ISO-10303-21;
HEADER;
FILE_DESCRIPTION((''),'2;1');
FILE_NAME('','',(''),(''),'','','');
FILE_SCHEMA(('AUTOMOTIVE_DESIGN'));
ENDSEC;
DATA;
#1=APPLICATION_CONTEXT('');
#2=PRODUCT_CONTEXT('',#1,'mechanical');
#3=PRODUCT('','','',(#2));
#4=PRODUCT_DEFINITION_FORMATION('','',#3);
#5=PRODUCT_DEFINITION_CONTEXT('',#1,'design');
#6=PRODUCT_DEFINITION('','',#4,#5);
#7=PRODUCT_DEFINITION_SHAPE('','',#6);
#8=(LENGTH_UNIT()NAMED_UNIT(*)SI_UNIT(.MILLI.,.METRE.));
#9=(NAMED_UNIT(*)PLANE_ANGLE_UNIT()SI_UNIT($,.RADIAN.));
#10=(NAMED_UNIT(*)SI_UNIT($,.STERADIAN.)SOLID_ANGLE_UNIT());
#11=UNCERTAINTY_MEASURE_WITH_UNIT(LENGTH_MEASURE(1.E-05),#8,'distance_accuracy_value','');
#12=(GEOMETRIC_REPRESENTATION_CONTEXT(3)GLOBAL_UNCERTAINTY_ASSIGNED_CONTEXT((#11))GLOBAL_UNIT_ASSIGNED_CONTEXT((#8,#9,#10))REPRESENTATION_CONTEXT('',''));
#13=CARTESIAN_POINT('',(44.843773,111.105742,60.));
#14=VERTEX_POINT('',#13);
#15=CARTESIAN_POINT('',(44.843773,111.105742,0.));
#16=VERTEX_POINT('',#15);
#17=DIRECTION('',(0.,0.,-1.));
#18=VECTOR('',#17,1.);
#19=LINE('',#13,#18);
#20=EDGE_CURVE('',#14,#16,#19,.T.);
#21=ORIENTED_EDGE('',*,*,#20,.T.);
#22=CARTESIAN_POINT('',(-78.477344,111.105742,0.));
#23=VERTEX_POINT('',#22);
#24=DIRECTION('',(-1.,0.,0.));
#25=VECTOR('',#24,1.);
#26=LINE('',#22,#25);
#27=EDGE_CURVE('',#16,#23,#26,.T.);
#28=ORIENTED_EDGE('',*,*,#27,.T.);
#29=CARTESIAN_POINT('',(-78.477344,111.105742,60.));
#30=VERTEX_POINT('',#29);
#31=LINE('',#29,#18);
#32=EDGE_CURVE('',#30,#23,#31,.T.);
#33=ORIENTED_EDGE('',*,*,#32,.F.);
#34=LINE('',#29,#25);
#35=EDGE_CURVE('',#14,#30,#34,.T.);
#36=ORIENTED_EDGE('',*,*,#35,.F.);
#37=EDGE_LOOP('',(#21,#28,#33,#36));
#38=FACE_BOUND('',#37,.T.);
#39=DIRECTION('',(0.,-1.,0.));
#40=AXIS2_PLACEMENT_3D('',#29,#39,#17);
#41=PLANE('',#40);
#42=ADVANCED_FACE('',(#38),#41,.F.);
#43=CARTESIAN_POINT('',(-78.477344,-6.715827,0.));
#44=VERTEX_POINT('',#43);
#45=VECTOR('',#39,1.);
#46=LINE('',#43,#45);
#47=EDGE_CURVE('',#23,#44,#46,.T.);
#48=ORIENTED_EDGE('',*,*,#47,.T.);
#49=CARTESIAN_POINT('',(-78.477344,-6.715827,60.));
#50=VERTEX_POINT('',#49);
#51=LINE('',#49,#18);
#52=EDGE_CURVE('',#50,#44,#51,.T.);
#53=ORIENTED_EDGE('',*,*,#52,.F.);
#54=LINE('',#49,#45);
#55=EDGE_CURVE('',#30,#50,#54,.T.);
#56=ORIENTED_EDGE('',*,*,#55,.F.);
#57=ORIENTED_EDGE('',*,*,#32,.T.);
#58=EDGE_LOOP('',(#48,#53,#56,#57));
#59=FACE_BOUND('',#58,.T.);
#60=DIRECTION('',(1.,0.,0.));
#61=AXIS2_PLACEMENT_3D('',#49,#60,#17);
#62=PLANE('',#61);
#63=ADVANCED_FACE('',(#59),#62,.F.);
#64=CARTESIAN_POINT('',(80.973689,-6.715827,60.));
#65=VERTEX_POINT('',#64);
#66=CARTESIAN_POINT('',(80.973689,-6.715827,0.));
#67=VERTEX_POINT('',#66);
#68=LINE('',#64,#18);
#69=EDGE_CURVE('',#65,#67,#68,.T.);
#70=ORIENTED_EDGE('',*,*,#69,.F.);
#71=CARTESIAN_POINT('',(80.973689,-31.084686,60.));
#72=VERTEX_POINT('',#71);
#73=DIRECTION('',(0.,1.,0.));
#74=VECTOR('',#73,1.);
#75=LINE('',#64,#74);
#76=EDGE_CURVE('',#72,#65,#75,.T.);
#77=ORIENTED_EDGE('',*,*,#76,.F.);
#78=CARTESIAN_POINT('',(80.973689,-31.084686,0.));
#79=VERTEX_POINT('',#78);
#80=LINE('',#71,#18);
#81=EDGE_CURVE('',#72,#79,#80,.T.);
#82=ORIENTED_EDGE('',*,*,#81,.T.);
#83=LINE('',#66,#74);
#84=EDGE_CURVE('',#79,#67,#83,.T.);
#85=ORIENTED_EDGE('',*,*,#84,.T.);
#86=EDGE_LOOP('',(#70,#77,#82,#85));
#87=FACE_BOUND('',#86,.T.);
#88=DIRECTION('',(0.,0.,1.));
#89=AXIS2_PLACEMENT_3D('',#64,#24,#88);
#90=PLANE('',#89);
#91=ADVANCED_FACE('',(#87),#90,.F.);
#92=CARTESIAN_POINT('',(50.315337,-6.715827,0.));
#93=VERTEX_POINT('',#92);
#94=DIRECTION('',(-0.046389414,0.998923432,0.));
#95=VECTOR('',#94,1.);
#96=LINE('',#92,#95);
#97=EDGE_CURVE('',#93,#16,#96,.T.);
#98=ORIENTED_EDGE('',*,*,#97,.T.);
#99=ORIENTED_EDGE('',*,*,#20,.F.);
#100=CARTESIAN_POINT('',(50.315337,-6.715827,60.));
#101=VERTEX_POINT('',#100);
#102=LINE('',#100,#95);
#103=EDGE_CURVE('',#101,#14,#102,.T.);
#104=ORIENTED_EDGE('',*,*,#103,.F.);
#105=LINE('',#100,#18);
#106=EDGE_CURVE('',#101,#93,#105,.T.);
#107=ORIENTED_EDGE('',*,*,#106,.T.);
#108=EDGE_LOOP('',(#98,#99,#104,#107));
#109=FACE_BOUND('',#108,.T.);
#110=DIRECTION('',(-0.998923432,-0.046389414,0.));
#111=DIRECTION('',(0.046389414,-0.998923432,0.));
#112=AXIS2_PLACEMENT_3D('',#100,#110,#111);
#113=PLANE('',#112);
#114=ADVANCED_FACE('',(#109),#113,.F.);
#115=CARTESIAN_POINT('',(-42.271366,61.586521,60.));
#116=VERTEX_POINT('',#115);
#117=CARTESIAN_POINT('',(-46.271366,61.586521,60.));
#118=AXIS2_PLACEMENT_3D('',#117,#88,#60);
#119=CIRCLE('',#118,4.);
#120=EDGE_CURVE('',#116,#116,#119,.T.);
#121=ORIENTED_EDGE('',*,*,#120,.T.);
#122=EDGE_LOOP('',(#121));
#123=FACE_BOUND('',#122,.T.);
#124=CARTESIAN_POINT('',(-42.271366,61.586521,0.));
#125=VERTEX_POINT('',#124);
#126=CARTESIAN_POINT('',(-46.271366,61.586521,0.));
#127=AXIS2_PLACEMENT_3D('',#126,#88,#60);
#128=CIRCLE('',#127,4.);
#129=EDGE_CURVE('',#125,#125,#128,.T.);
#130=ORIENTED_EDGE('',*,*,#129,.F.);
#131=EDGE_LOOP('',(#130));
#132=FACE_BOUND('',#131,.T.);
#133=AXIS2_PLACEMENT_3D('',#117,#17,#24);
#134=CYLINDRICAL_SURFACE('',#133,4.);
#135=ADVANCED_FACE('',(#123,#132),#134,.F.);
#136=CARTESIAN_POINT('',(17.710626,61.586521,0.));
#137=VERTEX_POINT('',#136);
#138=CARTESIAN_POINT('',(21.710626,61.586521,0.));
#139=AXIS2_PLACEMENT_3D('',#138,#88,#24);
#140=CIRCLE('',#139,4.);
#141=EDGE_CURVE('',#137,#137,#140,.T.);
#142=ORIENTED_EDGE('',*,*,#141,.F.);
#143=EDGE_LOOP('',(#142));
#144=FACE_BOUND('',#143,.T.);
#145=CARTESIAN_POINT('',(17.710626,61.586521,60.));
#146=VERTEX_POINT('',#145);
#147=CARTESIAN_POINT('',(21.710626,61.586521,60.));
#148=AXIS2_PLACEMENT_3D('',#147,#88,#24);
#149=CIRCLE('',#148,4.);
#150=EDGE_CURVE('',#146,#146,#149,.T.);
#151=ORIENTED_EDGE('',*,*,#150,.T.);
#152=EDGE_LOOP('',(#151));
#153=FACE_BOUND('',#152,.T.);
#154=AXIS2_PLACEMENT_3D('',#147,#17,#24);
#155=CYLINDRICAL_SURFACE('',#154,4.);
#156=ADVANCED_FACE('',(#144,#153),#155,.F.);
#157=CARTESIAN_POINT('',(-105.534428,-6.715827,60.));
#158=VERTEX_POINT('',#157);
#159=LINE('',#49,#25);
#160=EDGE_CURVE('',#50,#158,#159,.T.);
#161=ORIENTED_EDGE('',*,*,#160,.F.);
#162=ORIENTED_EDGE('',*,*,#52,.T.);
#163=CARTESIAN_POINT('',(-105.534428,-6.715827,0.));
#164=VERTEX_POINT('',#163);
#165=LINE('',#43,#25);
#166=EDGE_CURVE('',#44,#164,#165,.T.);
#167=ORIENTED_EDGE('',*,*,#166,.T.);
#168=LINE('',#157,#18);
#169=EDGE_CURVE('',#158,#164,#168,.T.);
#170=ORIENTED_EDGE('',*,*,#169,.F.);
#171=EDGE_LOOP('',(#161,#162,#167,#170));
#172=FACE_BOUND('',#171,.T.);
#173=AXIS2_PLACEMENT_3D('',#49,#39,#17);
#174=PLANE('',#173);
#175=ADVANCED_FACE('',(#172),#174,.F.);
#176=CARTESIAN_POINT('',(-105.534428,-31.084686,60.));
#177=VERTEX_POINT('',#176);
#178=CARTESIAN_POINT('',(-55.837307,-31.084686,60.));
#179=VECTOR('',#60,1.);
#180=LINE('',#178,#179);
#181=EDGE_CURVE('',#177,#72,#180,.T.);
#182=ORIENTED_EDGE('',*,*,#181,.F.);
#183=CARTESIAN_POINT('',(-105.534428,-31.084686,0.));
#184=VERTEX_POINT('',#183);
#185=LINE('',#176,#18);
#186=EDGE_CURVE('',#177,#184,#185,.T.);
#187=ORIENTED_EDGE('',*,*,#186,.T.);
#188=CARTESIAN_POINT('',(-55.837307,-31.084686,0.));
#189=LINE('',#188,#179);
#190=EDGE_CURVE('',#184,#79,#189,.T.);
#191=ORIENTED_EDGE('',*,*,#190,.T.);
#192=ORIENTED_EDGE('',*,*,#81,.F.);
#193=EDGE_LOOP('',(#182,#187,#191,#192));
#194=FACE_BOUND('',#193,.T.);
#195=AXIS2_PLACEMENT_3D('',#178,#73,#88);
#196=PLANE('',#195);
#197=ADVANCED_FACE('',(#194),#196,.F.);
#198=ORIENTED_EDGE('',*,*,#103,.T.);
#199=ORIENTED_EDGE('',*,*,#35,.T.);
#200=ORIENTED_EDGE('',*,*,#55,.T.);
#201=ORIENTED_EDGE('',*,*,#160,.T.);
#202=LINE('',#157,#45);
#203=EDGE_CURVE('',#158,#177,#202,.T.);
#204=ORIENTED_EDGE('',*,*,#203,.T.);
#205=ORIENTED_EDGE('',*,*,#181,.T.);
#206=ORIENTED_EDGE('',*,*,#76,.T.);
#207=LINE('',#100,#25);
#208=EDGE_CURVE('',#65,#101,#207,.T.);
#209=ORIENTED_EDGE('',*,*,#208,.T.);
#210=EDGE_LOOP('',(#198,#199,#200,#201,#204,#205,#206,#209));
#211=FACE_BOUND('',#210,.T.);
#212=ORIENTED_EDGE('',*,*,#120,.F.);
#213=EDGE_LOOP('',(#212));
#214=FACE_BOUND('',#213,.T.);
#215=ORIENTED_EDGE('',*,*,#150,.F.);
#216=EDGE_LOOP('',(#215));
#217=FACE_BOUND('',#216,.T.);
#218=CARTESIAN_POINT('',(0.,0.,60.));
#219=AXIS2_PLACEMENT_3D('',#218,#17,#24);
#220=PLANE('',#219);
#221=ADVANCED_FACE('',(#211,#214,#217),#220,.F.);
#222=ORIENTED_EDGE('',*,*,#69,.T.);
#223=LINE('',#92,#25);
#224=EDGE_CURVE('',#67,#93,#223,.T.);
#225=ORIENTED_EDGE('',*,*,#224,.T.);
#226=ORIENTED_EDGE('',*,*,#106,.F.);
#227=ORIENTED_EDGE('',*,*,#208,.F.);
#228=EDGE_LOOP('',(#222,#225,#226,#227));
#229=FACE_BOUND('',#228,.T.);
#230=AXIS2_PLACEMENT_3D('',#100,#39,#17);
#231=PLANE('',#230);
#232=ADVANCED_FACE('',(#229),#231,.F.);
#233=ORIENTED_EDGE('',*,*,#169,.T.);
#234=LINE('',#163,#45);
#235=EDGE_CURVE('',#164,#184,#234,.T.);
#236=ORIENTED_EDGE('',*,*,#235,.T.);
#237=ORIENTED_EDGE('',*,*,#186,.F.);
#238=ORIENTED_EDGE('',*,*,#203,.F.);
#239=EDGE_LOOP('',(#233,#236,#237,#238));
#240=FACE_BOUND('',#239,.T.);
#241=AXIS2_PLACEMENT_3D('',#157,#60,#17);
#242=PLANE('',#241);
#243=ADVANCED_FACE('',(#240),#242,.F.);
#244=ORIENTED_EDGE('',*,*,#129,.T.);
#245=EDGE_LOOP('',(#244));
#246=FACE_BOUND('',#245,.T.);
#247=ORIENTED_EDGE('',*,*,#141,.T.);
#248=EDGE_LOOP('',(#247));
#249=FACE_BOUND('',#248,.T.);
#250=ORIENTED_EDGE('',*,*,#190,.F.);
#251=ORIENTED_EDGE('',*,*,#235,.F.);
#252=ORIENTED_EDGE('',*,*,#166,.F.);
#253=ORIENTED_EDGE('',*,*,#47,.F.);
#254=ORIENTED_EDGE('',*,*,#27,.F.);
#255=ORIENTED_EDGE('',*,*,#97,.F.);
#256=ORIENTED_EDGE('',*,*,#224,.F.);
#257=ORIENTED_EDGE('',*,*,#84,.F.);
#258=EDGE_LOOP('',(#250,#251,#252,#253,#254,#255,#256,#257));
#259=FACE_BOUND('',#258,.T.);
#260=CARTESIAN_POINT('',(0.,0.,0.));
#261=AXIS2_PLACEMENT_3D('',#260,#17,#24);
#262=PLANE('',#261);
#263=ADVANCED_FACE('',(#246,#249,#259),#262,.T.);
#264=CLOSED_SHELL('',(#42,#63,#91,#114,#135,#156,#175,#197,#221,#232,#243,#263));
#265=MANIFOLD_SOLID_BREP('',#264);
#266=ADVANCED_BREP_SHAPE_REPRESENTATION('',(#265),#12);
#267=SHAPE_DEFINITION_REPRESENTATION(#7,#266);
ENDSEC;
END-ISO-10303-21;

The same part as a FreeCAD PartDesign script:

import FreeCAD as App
import Part
import Sketcher

V = App.Vector

doc = App.newDocument("Part")
body = doc.addObject("PartDesign::Body", "Body")

# Sketch on XY plane
sketch1 = doc.addObject("Sketcher::SketchObject", "Sketch")
body.addObject(sketch1)
sketch1.AttachmentSupport = (doc.XY_Plane, [""])
sketch1.MapMode = "FlatFace"
sketch1.addGeometry(Part.LineSegment(V(-78.477344, -6.715827, 0), V(-105.534428, -6.715827, 0)), False)
sketch1.addGeometry(Part.LineSegment(V(-105.534428, -6.715827, 0), V(-105.534428, -31.084686, 0)), False)
sketch1.addGeometry(Part.LineSegment(V(-105.534428, -31.084686, 0), V(80.973689, -31.084686, 0)), False)
sketch1.addGeometry(Part.LineSegment(V(80.973689, -31.084686, 0), V(80.973689, -6.715827, 0)), False)
sketch1.addGeometry(Part.LineSegment(V(80.973689, -6.715827, 0), V(50.315337, -6.715827, 0)), False)
sketch1.addGeometry(Part.LineSegment(V(50.315337, -6.715827, 0), V(44.843773, 111.105742, 0)), False)
sketch1.addGeometry(Part.LineSegment(V(44.843773, 111.105742, 0), V(-78.477344, 111.105742, 0)), False)
sketch1.addGeometry(Part.LineSegment(V(-78.477344, 111.105742, 0), V(-78.477344, -6.715827, 0)), False)
sketch1.addGeometry(Part.Circle(V(-46.271366, 61.586521, 0), V(0, 0, 1), 4), False)
sketch1.addGeometry(Part.Circle(V(21.710626, 61.586521, 0), V(0, 0, 1), 4), False)
sketch1.addConstraint(Sketcher.Constraint("Coincident", 0, 2, 1, 1))
sketch1.addConstraint(Sketcher.Constraint("Coincident", 1, 2, 2, 1))
sketch1.addConstraint(Sketcher.Constraint("Coincident", 2, 2, 3, 1))
sketch1.addConstraint(Sketcher.Constraint("Coincident", 3, 2, 4, 1))
sketch1.addConstraint(Sketcher.Constraint("Coincident", 4, 2, 5, 1))
sketch1.addConstraint(Sketcher.Constraint("Coincident", 5, 2, 6, 1))
sketch1.addConstraint(Sketcher.Constraint("Coincident", 6, 2, 7, 1))
sketch1.addConstraint(Sketcher.Constraint("Coincident", 7, 2, 0, 1))
sketch1.addConstraint(Sketcher.Constraint("Horizontal", 0))
sketch1.addConstraint(Sketcher.Constraint("Vertical", 1))
sketch1.addConstraint(Sketcher.Constraint("Horizontal", 2))
sketch1.addConstraint(Sketcher.Constraint("Vertical", 3))
sketch1.addConstraint(Sketcher.Constraint("Horizontal", 4))
sketch1.addConstraint(Sketcher.Constraint("Horizontal", 6))
sketch1.addConstraint(Sketcher.Constraint("Vertical", 7))
sketch1.addConstraint(Sketcher.Constraint("Equal", 8, 9))
sketch1.addConstraint(Sketcher.Constraint("Horizontal", 8, 3, 9, 3))
sketch1.addConstraint(Sketcher.Constraint("Horizontal", 0, 2, 3, 2))
sketch1.addConstraint(Sketcher.Constraint("Diameter", 8, 8.0))
sketch1.addConstraint(Sketcher.Constraint("DistanceX", 4, 2, 4, 1, 30.658352))
sketch1.addConstraint(Sketcher.Constraint("DistanceY", 1, 2, 1, 1, 24.368859))
sketch1.addConstraint(Sketcher.Constraint("DistanceY", 7, 2, 7, 1, 117.821569))
sketch1.addConstraint(Sketcher.Constraint("Distance", 5, 117.948549))
sketch1.addConstraint(Sketcher.Constraint("DistanceX", 0, 2, 0, 1, 27.057085))
sketch1.addConstraint(Sketcher.Constraint("DistanceX", 2, 1, 2, 2, 186.508117))
sketch1.addConstraint(Sketcher.Constraint("DistanceY", -1, 1, 8, 3, 61.586521))
sketch1.addConstraint(Sketcher.Constraint("DistanceX", 0, 2, -1, 1, 105.534428))
sketch1.addConstraint(Sketcher.Constraint("DistanceY", -1, 1, 5, 2, 111.105742))
sketch1.addConstraint(Sketcher.Constraint("DistanceX", 9, 3, 4, 2, 28.604711))
sketch1.addConstraint(Sketcher.Constraint("DistanceX", 8, 3, 5, 2, 91.115139))
pad1 = doc.addObject("PartDesign::Pad", "Pad")
body.addObject(pad1)
pad1.Profile = sketch1
pad1.Length = 60

doc.recompute()
